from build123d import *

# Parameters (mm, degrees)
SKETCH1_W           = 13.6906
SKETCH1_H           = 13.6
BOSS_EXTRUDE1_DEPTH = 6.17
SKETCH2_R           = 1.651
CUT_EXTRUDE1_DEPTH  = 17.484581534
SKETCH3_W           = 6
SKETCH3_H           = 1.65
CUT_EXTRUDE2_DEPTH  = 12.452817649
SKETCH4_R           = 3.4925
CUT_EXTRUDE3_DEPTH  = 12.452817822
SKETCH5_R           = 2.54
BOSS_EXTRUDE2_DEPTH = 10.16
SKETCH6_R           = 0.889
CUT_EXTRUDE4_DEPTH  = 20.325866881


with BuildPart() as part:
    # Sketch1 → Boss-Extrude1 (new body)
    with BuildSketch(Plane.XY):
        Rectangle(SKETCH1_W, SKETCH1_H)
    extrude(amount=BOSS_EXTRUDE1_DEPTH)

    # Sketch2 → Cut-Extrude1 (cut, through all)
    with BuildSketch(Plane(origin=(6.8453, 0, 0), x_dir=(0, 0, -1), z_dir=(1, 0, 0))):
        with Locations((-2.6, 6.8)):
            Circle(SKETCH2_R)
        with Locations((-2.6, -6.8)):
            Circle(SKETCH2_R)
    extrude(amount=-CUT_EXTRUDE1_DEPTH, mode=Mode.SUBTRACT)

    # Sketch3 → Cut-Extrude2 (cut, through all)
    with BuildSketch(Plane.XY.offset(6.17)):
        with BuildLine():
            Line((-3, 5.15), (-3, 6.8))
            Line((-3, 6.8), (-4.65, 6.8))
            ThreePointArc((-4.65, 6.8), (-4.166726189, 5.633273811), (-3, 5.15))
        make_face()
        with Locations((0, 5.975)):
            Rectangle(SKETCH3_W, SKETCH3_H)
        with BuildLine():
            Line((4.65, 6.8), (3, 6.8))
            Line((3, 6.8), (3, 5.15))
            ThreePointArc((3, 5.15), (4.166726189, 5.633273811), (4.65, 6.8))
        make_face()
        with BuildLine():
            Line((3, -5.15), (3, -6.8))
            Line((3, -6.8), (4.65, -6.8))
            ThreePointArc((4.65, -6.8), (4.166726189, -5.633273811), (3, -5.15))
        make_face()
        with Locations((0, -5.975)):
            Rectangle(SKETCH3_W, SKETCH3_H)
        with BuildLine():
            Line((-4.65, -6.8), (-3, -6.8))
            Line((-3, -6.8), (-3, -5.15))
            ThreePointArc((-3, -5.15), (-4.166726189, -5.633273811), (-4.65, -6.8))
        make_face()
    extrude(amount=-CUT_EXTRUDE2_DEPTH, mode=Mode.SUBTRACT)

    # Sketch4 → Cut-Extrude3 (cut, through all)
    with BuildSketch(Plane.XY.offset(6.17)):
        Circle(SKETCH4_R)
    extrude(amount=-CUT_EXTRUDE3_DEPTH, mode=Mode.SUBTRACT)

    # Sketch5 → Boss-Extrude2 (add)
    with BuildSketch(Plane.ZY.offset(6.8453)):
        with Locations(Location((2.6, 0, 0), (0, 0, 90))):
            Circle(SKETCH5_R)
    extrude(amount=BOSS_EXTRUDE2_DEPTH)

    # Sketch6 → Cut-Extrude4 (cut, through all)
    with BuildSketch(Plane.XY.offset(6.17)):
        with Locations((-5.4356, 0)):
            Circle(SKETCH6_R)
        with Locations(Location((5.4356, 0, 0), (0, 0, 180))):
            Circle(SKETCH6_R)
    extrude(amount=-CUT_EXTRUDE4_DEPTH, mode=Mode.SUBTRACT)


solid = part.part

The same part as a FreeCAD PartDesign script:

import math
import FreeCAD as App
import Part
import Sketcher
from FreeCAD import Vector
Q = App.Units.Quantity

doc = App.newDocument("Part")
body = doc.addObject("PartDesign::Body", "Body")

# Sketch on XY plane
sketch1 = body.newObject("Sketcher::SketchObject", "Sketch")
sketch1.AttachmentSupport = (doc.getObject("XY_Plane"), [""])
sketch1.MapMode = "FlatFace"
sketch1.addGeometry([
    Part.LineSegment(Vector(-7, 7, 0), Vector(-7, -7, 0)),
    Part.LineSegment(Vector(-7, -7, 0), Vector(7, -7, 0)),
    Part.LineSegment(Vector(7, -7, 0), Vector(7, 7, 0)),
    Part.LineSegment(Vector(7, 7, 0), Vector(-7, 7, 0)),
], False)
sketch1.addConstraint([
    Sketcher.Constraint("Coincident", 0, 2, 1, 1),
    Sketcher.Constraint("Coincident", 1, 2, 2, 1),
    Sketcher.Constraint("Coincident", 2, 2, 3, 1),
    Sketcher.Constraint("Coincident", 3, 2, 0, 1),
    Sketcher.Constraint("Vertical", 0),
    Sketcher.Constraint("Horizontal", 1),
    Sketcher.Constraint("Vertical", 2),
    Sketcher.Constraint("Horizontal", 3),
    Sketcher.Constraint("Symmetric", 0, 2, 2, 2, -1, 1),
    Sketcher.Constraint("DistanceX", 1, 1, 1, 2, Q("0.539 in")),
    Sketcher.Constraint("DistanceY", 0, 2, 0, 1, 13.6),
])
pad1 = body.newObject("PartDesign::Pad", "Pad")
pad1.Profile = sketch1
pad1.Length = 6.17

# Sketch on YZ plane
sketch2 = body.newObject("Sketcher::SketchObject", "Sketch001")
sketch2.AttachmentSupport = (doc.getObject("YZ_Plane"), [""])
sketch2.MapMode = "FlatFace"
sketch2.AttachmentOffset = App.Placement(Vector(0, 0, 0.2695 * 25.4), App.Rotation())
sketch2.addGeometry([
    Part.Circle(Vector(6.8, 2.6, 0), Vector(0, 0, 1), 1.7),
    Part.Circle(Vector(-6.8, 2.6, 0), Vector(0, 0, 1), 1.7),
], False)
sketch2.addConstraint([
    Sketcher.Constraint("Equal", 0, 1),
    Sketcher.Constraint("Symmetric", 0, 3, 1, 3, -2),
    Sketcher.Constraint("Diameter", 0, Q("0.13 in")),
    Sketcher.Constraint("DistanceX", -1, 1, 0, 3, 6.8),
    Sketcher.Constraint("DistanceY", -1, 1, 0, 3, 2.6),
])
pocket1 = body.newObject("PartDesign::Pocket", "Pocket")
pocket1.Profile = sketch2
pocket1.Type = "ThroughAll"

# Sketch on XY plane
sketch3 = body.newObject("Sketcher::SketchObject", "Sketch002")
sketch3.AttachmentSupport = (doc.getObject("XY_Plane"), [""])
sketch3.MapMode = "FlatFace"
sketch3.AttachmentOffset = App.Placement(Vector(0, 0, 6.17), App.Rotation())
sketch3.addGeometry([
    Part.ArcOfCircle(Part.Circle(Vector(-3, 6.8, 0), Vector(0, 0, 1), 1.6), math.radians(180), math.radians(270)),  # 0
    Part.LineSegment(Vector(-3, 5.2, 0), Vector(3, 5.2, 0)),  # 1
    Part.ArcOfCircle(Part.Circle(Vector(3, 6.8, 0), Vector(0, 0, 1), 1.6), math.radians(-90), math.radians(0)),  # 2
    Part.LineSegment(Vector(4.7, 6.8, 0), Vector(-4.7, 6.8, 0)),  # 3
    Part.ArcOfCircle(Part.Circle(Vector(3, -6.8, 0), Vector(0, 0, 1), 1.6), math.radians(0), math.radians(90)),  # 4
    Part.LineSegment(Vector(3, -5.2, 0), Vector(-3, -5.2, 0)),  # 5
    Part.ArcOfCircle(Part.Circle(Vector(-3, -6.8, 0), Vector(0, 0, 1), 1.6), math.radians(90), math.radians(180)),  # 6
    Part.LineSegment(Vector(-4.7, -6.8, 0), Vector(4.7, -6.8, 0)),  # 7
], False)
sketch3.addConstraint([
    Sketcher.Constraint("Tangent", 0, 2, 1, 1),
    Sketcher.Constraint("Tangent", 1, 2, 2, 1),
    Sketcher.Constraint("Coincident", 2, 2, 3, 1),
    Sketcher.Constraint("Coincident", 3, 2, 0, 1),
    Sketcher.Constraint("Tangent", 4, 2, 5, 1),
    Sketcher.Constraint("Tangent", 5, 2, 6, 1),
    Sketcher.Constraint("Coincident", 6, 2, 7, 1),
    Sketcher.Constraint("Coincident", 7, 2, 4, 1),
    Sketcher.Constraint("Horizontal", 1),
    Sketcher.Constraint("Horizontal", 3),
    Sketcher.Constraint("Horizontal", 5),
    Sketcher.Constraint("Horizontal", 7),
    Sketcher.Constraint("Equal", 0, 2),
    Sketcher.Constraint("Equal", 2, 4),
    Sketcher.Constraint("Equal", 4, 6),
    Sketcher.Constraint("Symmetric", 0, 3, 4, 3, -1, 1),
    Sketcher.Constraint("Symmetric", 2, 2, 6, 2, -1, 1),
    Sketcher.Constraint("Horizontal", 0, 3, 2, 2),
    Sketcher.Constraint("Vertical", 2, 3, 4, 3),
    Sketcher.Constraint("Radius", 0, 1.65),
    Sketcher.Constraint("DistanceX", 1, 1, 1, 2, 6.0),
    Sketcher.Constraint("DistanceY", -1, 1, 0, 3, 6.8),
])
pocket2 = body.newObject("PartDesign::Pocket", "Pocket001")
pocket2.Profile = sketch3
pocket2.Type = "ThroughAll"

# Sketch on XY plane
sketch4 = body.newObject("Sketcher::SketchObject", "Sketch003")
sketch4.AttachmentSupport = (doc.getObject("XY_Plane"), [""])
sketch4.MapMode = "FlatFace"
sketch4.AttachmentOffset = App.Placement(Vector(0, 0, 6.17), App.Rotation())
sketch4.addGeometry(Part.Circle(Vector(0, 0, 0), Vector(0, 0, 1), 3.5), False)
sketch4.addConstraint([
    Sketcher.Constraint("Coincident", 0, 3, -1, 1),
    Sketcher.Constraint("Diameter", 0, Q("0.275 in")),
])
pocket3 = body.newObject("PartDesign::Pocket", "Pocket002")
pocket3.Profile = sketch4
pocket3.Type = "ThroughAll"

# Sketch on YZ plane
sketch5 = body.newObject("Sketcher::SketchObject", "Sketch004")
sketch5.AttachmentSupport = (doc.getObject("YZ_Plane"), [""])
sketch5.MapMode = "FlatFace"
sketch5.AttachmentOffset = App.Placement(Vector(0, 0, -0.2695 * 25.4), App.Rotation())
sketch5.addGeometry(Part.Circle(Vector(0, 2.6, 0), Vector(0, 0, 1), 2.5), False)
sketch5.addConstraint([
    Sketcher.Constraint("PointOnObject", 0, 3, -2),
    Sketcher.Constraint("Diameter", 0, Q("0.2 in")),
    Sketcher.Constraint("DistanceY", -1, 1, 0, 3, 2.6),
])
pad2 = body.newObject("PartDesign::Pad", "Pad001")
pad2.Profile = sketch5
pad2.Length = Q("0.4 in")
pad2.Reversed = True

# Sketch on XY plane
sketch6 = body.newObject("Sketcher::SketchObject", "Sketch005")
sketch6.AttachmentSupport = (doc.getObject("XY_Plane"), [""])
sketch6.MapMode = "FlatFace"
sketch6.AttachmentOffset = App.Placement(Vector(0, 0, 6.17), App.Rotation())
sketch6.addGeometry([
    Part.Circle(Vector(-5.4, 0, 0), Vector(0, 0, 1), 0.9),
    Part.Circle(Vector(5.4, 0, 0), Vector(0, 0, 1), 0.9),
], False)
sketch6.addConstraint([
    Sketcher.Constraint("Equal", 0, 1),
    Sketcher.Constraint("Symmetric", 0, 3, 1, 3, -1, 1),
    Sketcher.Constraint("PointOnObject", 0, 3, -1),
    Sketcher.Constraint("Diameter", 0, Q("0.07 in")),
    Sketcher.Constraint("DistanceX", 0, 3, -1, 1, Q("0.214 in")),
])
pocket4 = body.newObject("PartDesign::Pocket", "Pocket003")
pocket4.Profile = sketch6
pocket4.Type = "ThroughAll"

doc.recompute()
